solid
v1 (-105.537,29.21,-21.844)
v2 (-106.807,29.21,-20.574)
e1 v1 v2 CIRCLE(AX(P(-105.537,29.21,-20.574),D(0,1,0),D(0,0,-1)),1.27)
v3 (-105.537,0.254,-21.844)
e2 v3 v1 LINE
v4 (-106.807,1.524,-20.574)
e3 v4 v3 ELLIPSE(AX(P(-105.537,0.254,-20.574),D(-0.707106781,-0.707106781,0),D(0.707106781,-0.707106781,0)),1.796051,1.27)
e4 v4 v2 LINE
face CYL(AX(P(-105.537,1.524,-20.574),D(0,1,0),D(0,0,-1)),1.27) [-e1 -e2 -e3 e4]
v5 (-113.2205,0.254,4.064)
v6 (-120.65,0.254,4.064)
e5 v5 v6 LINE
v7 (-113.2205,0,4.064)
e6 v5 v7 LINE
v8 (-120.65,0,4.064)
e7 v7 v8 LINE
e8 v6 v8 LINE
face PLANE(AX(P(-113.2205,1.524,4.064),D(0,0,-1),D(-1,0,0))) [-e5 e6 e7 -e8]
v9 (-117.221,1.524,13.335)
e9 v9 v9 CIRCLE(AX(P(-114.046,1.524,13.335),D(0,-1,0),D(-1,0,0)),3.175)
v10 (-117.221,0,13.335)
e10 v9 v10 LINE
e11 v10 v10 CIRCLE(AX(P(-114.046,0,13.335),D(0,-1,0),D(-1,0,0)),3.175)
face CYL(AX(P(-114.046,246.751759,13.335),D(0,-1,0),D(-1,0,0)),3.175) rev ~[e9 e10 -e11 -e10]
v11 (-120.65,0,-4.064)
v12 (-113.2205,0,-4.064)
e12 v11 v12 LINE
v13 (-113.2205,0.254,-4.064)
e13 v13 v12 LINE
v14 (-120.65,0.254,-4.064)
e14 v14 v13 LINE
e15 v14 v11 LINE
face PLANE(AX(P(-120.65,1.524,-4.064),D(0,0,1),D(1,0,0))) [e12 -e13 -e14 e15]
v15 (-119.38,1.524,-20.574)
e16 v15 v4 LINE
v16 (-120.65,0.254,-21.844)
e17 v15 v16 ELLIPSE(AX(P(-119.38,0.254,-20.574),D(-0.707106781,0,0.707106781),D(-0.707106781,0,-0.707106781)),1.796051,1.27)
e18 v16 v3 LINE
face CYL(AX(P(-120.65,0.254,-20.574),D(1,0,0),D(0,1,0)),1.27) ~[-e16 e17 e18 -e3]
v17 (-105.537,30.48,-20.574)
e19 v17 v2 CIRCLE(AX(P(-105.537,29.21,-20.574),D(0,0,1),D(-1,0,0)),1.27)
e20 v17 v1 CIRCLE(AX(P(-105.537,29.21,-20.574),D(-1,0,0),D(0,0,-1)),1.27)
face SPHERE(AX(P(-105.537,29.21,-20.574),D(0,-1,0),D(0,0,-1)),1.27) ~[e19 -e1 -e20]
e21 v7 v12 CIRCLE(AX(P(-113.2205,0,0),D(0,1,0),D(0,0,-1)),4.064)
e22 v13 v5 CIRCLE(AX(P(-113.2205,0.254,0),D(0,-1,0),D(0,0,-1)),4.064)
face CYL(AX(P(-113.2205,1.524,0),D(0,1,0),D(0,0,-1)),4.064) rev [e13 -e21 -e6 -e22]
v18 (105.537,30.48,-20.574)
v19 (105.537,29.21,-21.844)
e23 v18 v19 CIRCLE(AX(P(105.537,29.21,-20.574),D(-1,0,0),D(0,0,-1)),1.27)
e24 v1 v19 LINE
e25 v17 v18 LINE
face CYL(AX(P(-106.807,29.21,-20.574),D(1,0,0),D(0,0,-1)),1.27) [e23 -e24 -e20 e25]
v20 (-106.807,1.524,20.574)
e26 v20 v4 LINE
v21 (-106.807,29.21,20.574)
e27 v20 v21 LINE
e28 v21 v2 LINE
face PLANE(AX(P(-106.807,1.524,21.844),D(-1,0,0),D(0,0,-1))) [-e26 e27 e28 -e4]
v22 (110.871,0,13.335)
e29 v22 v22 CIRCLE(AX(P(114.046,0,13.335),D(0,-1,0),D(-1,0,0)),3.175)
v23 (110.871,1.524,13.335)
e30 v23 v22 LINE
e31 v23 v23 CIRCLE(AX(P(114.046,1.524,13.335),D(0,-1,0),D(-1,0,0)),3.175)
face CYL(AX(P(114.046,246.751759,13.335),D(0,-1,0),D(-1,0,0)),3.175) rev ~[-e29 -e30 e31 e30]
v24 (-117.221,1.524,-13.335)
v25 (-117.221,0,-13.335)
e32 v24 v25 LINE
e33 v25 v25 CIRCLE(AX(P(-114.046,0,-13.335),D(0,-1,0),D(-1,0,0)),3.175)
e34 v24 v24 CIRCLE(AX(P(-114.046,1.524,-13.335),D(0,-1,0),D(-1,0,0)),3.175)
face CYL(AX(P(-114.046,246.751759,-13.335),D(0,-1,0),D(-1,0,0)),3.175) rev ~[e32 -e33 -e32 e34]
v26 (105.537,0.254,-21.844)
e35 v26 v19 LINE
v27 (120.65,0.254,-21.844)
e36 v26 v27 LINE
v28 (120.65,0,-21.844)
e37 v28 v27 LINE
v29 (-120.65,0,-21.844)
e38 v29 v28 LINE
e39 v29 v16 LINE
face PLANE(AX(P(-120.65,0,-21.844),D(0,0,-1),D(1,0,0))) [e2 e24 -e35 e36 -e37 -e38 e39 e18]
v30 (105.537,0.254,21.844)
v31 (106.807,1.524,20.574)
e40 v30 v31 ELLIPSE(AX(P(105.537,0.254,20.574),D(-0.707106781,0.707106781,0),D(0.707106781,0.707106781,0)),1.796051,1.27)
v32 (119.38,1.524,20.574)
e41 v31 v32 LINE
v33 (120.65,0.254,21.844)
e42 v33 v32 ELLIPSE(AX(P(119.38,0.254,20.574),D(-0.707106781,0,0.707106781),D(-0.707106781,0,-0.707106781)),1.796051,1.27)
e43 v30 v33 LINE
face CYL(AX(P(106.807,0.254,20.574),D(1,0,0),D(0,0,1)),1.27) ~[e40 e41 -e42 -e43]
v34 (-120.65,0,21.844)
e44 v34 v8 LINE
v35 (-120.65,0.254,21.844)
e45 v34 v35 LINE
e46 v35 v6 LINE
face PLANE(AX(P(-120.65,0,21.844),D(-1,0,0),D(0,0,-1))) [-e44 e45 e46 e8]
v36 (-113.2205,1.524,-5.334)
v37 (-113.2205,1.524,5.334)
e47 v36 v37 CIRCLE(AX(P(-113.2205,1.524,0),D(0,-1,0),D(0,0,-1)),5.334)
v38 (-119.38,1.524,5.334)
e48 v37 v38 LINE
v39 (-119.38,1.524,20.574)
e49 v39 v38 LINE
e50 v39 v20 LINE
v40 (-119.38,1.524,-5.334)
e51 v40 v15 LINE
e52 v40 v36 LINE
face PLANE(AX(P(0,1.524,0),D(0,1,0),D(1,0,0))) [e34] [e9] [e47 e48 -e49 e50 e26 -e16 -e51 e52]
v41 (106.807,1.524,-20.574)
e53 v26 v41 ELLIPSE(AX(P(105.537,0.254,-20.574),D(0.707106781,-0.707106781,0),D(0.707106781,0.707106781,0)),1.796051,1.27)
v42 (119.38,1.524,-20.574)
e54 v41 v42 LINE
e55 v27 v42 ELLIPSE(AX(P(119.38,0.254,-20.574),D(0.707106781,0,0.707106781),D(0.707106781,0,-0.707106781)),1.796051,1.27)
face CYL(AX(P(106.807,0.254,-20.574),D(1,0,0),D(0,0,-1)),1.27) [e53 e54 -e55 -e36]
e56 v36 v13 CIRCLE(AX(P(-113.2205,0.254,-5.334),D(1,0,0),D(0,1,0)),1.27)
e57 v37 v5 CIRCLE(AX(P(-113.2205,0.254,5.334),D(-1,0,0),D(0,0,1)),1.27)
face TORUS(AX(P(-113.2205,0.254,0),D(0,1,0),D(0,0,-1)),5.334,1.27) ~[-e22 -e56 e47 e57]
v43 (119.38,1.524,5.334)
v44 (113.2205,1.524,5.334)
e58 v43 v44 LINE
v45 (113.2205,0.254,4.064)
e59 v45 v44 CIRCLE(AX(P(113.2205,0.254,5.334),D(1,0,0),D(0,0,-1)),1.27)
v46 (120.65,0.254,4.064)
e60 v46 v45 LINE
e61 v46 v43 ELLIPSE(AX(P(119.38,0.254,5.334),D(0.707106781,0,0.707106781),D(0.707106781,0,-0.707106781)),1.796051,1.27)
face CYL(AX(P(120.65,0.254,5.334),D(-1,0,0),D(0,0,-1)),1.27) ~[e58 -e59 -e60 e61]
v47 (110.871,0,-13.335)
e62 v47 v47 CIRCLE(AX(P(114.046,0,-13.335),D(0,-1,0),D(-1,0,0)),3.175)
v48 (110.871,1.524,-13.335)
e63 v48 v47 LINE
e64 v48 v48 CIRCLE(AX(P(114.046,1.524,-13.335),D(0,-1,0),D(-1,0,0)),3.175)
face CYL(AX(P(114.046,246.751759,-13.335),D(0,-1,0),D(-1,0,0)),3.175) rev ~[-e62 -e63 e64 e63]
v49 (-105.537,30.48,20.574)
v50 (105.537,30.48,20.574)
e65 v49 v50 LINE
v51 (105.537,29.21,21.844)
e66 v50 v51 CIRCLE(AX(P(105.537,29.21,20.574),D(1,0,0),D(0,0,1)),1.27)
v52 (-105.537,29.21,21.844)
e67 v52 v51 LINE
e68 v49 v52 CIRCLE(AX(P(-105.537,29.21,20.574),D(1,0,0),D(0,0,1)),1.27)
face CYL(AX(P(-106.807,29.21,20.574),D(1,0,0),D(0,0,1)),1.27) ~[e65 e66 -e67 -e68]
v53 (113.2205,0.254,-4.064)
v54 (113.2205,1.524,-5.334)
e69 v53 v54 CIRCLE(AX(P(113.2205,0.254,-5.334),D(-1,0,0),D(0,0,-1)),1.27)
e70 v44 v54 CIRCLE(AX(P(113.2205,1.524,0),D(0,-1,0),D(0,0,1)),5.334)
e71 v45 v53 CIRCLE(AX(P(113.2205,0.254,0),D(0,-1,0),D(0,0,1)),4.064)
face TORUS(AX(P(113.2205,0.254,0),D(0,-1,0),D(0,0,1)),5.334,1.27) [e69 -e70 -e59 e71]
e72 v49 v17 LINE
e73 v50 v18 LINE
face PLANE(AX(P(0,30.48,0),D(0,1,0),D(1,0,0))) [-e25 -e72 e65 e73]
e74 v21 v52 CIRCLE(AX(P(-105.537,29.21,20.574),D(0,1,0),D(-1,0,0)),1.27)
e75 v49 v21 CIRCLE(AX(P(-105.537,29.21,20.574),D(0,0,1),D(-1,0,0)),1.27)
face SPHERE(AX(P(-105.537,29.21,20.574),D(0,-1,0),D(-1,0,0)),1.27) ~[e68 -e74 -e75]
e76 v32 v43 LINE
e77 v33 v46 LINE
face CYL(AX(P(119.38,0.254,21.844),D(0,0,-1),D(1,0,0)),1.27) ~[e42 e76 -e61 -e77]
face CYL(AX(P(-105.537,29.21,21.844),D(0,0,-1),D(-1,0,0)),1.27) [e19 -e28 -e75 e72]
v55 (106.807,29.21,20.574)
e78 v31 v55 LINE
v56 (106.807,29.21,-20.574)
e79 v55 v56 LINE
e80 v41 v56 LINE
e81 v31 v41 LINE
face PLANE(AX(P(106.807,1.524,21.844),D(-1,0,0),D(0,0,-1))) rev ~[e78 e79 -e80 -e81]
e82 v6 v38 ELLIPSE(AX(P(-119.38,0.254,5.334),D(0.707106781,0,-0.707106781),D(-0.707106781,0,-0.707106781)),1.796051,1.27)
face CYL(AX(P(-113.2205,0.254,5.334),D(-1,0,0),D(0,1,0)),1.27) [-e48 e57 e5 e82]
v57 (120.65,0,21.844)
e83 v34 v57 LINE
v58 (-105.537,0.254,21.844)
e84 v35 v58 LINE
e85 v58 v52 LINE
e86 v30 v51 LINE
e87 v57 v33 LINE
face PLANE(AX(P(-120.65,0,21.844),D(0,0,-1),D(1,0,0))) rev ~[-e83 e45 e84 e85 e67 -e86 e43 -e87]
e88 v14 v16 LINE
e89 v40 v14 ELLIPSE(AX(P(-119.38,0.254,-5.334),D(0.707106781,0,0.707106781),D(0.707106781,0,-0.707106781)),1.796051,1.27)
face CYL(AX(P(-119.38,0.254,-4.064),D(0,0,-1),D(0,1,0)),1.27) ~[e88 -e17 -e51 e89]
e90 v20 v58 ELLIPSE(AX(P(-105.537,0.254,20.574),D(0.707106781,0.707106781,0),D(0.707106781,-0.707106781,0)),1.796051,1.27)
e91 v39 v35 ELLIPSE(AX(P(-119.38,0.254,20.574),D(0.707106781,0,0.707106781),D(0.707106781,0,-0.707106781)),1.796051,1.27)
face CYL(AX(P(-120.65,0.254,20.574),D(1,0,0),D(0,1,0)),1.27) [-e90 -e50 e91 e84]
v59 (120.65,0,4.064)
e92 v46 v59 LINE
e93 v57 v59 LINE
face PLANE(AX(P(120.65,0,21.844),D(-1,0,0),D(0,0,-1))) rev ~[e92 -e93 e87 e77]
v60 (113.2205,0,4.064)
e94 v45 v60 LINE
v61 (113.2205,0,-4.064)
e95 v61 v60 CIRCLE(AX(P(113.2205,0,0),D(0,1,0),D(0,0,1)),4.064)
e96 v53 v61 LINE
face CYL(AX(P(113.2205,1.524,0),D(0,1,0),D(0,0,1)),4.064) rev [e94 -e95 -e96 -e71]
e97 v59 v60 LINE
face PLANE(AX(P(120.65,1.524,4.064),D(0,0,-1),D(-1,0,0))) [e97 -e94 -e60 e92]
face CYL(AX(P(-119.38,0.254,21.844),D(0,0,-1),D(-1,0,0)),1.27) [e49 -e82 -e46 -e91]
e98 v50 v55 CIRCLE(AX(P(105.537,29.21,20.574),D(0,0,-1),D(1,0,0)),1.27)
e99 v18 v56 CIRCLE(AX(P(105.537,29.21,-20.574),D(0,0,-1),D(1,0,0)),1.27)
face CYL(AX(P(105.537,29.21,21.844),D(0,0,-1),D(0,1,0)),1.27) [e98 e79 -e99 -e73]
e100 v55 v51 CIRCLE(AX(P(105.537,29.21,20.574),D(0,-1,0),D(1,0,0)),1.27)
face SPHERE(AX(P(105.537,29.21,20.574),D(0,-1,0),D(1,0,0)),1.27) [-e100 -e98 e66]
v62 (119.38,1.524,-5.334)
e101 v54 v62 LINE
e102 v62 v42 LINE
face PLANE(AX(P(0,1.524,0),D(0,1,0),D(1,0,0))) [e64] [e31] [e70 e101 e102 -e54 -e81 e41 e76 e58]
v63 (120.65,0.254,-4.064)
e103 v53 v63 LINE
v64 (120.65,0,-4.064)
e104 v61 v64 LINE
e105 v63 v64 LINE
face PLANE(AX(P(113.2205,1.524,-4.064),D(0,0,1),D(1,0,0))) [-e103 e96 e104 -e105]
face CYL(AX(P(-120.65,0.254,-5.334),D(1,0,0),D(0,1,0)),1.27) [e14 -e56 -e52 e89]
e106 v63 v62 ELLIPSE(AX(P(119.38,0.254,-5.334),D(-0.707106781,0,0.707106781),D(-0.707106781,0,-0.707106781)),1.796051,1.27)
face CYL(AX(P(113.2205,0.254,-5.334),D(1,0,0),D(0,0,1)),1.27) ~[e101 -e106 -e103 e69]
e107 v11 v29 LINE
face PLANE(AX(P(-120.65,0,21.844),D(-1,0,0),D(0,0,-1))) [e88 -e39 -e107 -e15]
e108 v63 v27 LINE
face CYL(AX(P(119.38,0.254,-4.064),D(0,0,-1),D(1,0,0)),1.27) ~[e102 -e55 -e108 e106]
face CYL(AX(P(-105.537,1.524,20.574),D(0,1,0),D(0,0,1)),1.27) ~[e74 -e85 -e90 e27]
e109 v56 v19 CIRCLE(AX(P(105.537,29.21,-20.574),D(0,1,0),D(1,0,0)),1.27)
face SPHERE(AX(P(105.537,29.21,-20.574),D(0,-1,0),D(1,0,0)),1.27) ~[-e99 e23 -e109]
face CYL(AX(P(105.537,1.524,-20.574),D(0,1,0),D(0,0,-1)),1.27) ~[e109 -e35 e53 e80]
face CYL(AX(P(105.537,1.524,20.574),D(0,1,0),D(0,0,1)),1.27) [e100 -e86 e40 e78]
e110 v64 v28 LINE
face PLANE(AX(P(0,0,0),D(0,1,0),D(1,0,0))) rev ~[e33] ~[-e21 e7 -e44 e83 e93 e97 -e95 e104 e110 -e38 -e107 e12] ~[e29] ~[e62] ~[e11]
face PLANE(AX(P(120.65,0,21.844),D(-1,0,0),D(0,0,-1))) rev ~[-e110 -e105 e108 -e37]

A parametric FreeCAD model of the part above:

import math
import FreeCAD as App
import Part
import Sketcher
Q = App.Units.Quantity


def edges_at(feature, points):
    """Names of the edges that pass closest to the given points."""
    edges = feature.Shape.Edges
    near = lambda p: min(range(len(edges)), key=lambda i: edges[i].distToShape(Part.Vertex(*p))[0])
    return sorted({f"Edge{near(p) + 1}" for p in points})


def add_polygon(sketch, points):
    """Adds a closed chain of lines whose ends are joined by coincident constraints."""
    first, n = sketch.GeometryCount, len(points)
    for a, b in zip(points, points[1:] + points[:1]):
        sketch.addGeometry(Part.LineSegment(App.Vector(*a, 0), App.Vector(*b, 0)), False)
    for i in range(n):
        sketch.addConstraint(Sketcher.Constraint("Coincident", first + i, 2, first + (i + 1) % n, 1))

doc = App.newDocument("Part")
body = doc.addObject("PartDesign::Body", "Body")

sketch1 = body.newObject("Sketcher::SketchObject", "Sketch")
sketch1.AttachmentSupport = (doc.getObject("XZ_Plane"), [""])
sketch1.MapMode = "FlatFace"
add_polygon(sketch1, [(-121, -22), (-121, 22), (121, 22), (121, -22)])
sketch1.addConstraint([
    Sketcher.Constraint("Vertical", 0),
    Sketcher.Constraint("Horizontal", 1),
    Sketcher.Constraint("Vertical", 2),
    Sketcher.Constraint("Horizontal", 3),
    Sketcher.Constraint("Symmetric", 0, 2, 2, 2, -1, 1),
    Sketcher.Constraint("DistanceX", 1, 1, 1, 2, Q("9.5 in")),
    Sketcher.Constraint("DistanceY", 0, 1, 0, 2, Q("1.72 in")),
])
pad1 = body.newObject("PartDesign::Pad", "Pad")
pad1.Profile = sketch1
pad1.Length = Q("0.06 in")
pad1.Reversed = True

sketch2 = body.newObject("Sketcher::SketchObject", "Sketch001")
sketch2.AttachmentSupport = (doc.getObject("XZ_Plane"), [""])
sketch2.MapMode = "FlatFace"
sketch2.AttachmentOffset = App.Placement(App.Vector(0, 0, -0.06 * 25.4), App.Rotation())
sketch2.addGeometry([
    Part.Circle(App.Vector(114, 13.3, 0), App.Vector(0, 0, 1), 3.2),
    Part.Circle(App.Vector(-114, -13.3, 0), App.Vector(0, 0, 1), 3.2),
    Part.Circle(App.Vector(-114, 13.3, 0), App.Vector(0, 0, 1), 3.2),
    Part.Circle(App.Vector(114, -13.3, 0), App.Vector(0, 0, 1), 3.2),
], False)
sketch2.addConstraint([
    Sketcher.Constraint("Equal", 0, 1),
    Sketcher.Constraint("Equal", 1, 2),
    Sketcher.Constraint("Equal", 2, 3),
    Sketcher.Constraint("Symmetric", 0, 3, 1, 3, -1, 1),
    Sketcher.Constraint("Symmetric", 2, 3, 3, 3, -1, 1),
    Sketcher.Constraint("Symmetric", 0, 3, 2, 3, -2),
    Sketcher.Constraint("Diameter", 0, Q("0.25 in")),
    Sketcher.Constraint("DistanceX", -1, 1, 0, 3, Q("4.49 in")),
    Sketcher.Constraint("DistanceY", 1, 3, 0, 3, Q("1.05 in")),
])
doc.recompute()
hole = body.newObject("PartDesign::Hole", "Hole")
hole.Profile = sketch2
hole.ThreadType = "None"
hole.Diameter = Q("0.25 in")
hole.DepthType = "ThroughAll"
hole.Reversed = True

sketch3 = body.newObject("Sketcher::SketchObject", "Sketch002")
sketch3.AttachmentSupport = (doc.getObject("XZ_Plane"), [""])
sketch3.MapMode = "FlatFace"
sketch3.AttachmentOffset = App.Placement(App.Vector(0, 0, -0.06 * 25.4), App.Rotation())
sketch3.addGeometry([
    Part.LineSegment(App.Vector(-113.2, -4.1, 0), App.Vector(-120.7, -4.1, 0)),
    Part.LineSegment(App.Vector(-120.7, -4.1, 0), App.Vector(-120.7, 4.1, 0)),
    Part.LineSegment(App.Vector(-120.7, 4.1, 0), App.Vector(-113.2, 4.1, 0)),
    Part.ArcOfCircle(Part.Circle(App.Vector(-113.2, 0, 0), App.Vector(0, 0, 1), 4.1), math.radians(-90), math.radians(90)),
    Part.LineSegment(App.Vector(120.7, -4.1, 0), App.Vector(113.2, -4.1, 0)),
    Part.ArcOfCircle(Part.Circle(App.Vector(113.2, 0, 0), App.Vector(0, 0, 1), 4.1), math.radians(90), math.radians(270)),
    Part.LineSegment(App.Vector(113.2, 4.1, 0), App.Vector(120.7, 4.1, 0)),
    Part.LineSegment(App.Vector(120.7, 4.1, 0), App.Vector(120.7, -4.1, 0)),
], False)
sketch3.addConstraint([
    Sketcher.Constraint("Coincident", 0, 2, 1, 1),
    Sketcher.Constraint("Coincident", 1, 2, 2, 1),
    Sketcher.Constraint("Tangent", 2, 2, 3, 2),
    Sketcher.Constraint("Tangent", 3, 1, 0, 1),
    Sketcher.Constraint("Tangent", 4, 2, 5, 2),
    Sketcher.Constraint("Tangent", 5, 1, 6, 1),
    Sketcher.Constraint("Coincident", 6, 2, 7, 1),
    Sketcher.Constraint("Coincident", 7, 2, 4, 1),
    Sketcher.Constraint("Horizontal", 0),
    Sketcher.Constraint("Vertical", 1),
    Sketcher.Constraint("Horizontal", 2),
    Sketcher.Constraint("Horizontal", 4),
    Sketcher.Constraint("Horizontal", 6),
    Sketcher.Constraint("Vertical", 7),
    Sketcher.Constraint("Equal", 3, 5),
    Sketcher.Constraint("Symmetric", 3, 3, 5, 3, -1, 1),
    Sketcher.Constraint("Symmetric", 1, 2, 6, 2, -2),
    Sketcher.Constraint("Radius", 3, Q("0.16 in")),
    Sketcher.Constraint("DistanceX", 0, 2, -1, 1, Q("4.75 in")),
    Sketcher.Constraint("DistanceX", 0, 2, 0, 1, Q("0.2925 in")),
])
pocket1 = body.newObject("PartDesign::Pocket", "Pocket")
pocket1.Profile = sketch3
pocket1.Type = "ThroughAll"
pocket1.Reversed = True

sketch4 = body.newObject("Sketcher::SketchObject", "Sketch003")
sketch4.AttachmentSupport = (doc.getObject("XZ_Plane"), [""])
sketch4.MapMode = "FlatFace"
sketch4.AttachmentOffset = App.Placement(App.Vector(0, 0, -0.06 * 25.4), App.Rotation())
add_polygon(sketch4, [(-107, -22), (-107, 22), (107, 22), (107, -22)])
sketch4.addConstraint([
    Sketcher.Constraint("Vertical", 0),
    Sketcher.Constraint("Horizontal", 1),
    Sketcher.Constraint("Vertical", 2),
    Sketcher.Constraint("Horizontal", 3),
    Sketcher.Constraint("Symmetric", 0, 2, 2, 2, -1, 1),
    Sketcher.Constraint("DistanceX", 1, 1, 1, 2, Q("8.41 in")),
    Sketcher.Constraint("DistanceY", 0, 1, 0, 2, Q("1.72 in")),
])
pad2 = body.newObject("PartDesign::Pad", "Pad001")
pad2.Profile = sketch4
pad2.Length = Q("1.14 in")
pad2.Reversed = True
doc.recompute()

fillet = body.newObject("PartDesign::Fillet", "Fillet")
fillet.Base = (pad2, edges_at(pad2, [
    (-120.65, 1.524, -12.954),
    (-113.728, 1.524, 21.844),
    (120.65, 1.524, -12.954),
    (120.65, 1.524, 12.954),
    (116.935, 1.524, -4.064),
    (109.156, 1.524, 0),
    (116.935, 1.524, 4.064),
    (-120.65, 1.524, 12.954),
    (-109.156, 1.524, 0),
    (-116.935, 1.524, -4.064),
    (-116.935, 1.524, 4.064),
    (113.728, 1.524, 21.844),
    (-113.728, 1.524, -21.844),
    (106.807, 16.002, 21.844),
    (106.807, 16.002, -21.844),
    (-106.807, 16.002, -21.844),
    (-106.807, 16.002, 21.844),
    (106.807, 30.48, 0),
    (113.728, 1.524, -21.844),
    (0, 30.48, -21.844),
    (-106.807, 30.48, 0),
    (0, 30.48, 21.844),
]))
fillet.Radius = Q("0.05 in")

doc.recompute()
